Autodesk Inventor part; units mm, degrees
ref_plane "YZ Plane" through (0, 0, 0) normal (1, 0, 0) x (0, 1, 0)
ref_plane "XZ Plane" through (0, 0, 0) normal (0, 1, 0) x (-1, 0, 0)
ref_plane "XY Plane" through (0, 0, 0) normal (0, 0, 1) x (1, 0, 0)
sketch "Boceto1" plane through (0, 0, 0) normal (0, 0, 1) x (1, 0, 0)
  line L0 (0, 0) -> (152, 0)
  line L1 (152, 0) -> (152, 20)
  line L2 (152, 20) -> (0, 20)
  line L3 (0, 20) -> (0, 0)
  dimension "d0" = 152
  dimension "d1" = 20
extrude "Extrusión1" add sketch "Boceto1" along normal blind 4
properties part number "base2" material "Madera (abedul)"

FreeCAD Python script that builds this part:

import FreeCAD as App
import Part
import Sketcher

V = App.Vector
Q = App.Units.Quantity

doc = App.newDocument("Part")
body = doc.addObject("PartDesign::Body", "Body")

sketch1 = body.newObject("Sketcher::SketchObject", "Sketch")
sketch1.AttachmentSupport = (doc.getObject("XY_Plane"), [""])
sketch1.MapMode = "FlatFace"
sketch1.addGeometry([
    Part.LineSegment(V(0, 20, 0), V(0, 0, 0)),
    Part.LineSegment(V(0, 0, 0), V(152, 0, 0)),
    Part.LineSegment(V(152, 0, 0), V(152, 20, 0)),
    Part.LineSegment(V(152, 20, 0), V(0, 20, 0)),
], False)
sketch1.addConstraint([
    Sketcher.Constraint("Coincident", 0, 2, 1, 1),
    Sketcher.Constraint("Coincident", 1, 2, 2, 1),
    Sketcher.Constraint("Coincident", 2, 2, 3, 1),
    Sketcher.Constraint("Coincident", 3, 2, 0, 1),
    Sketcher.Constraint("Vertical", 0),
    Sketcher.Constraint("Horizontal", 1),
    Sketcher.Constraint("Vertical", 2),
    Sketcher.Constraint("Horizontal", 3),
    Sketcher.Constraint("Coincident", 0, 2, -1, 1),
    Sketcher.Constraint("DistanceX", 1, 1, 1, 2, Q("152 mm")),
    Sketcher.Constraint("DistanceY", 0, 2, 0, 1, Q("20 mm")),
])
pad1 = body.newObject("PartDesign::Pad", "Pad")
pad1.Profile = sketch1
pad1.Length = 4

doc.recompute()
